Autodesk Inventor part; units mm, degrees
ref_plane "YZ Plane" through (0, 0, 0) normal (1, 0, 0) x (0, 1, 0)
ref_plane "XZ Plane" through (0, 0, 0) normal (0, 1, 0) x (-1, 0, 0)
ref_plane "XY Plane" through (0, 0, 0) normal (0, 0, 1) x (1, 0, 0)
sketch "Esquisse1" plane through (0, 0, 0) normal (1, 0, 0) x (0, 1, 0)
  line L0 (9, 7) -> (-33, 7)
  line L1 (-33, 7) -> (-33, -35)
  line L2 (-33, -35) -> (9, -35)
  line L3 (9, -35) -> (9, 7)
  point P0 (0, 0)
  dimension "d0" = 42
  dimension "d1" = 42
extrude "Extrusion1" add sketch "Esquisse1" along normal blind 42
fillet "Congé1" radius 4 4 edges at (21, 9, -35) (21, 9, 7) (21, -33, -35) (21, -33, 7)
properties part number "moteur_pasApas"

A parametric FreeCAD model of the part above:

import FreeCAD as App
import Part
import Sketcher


def edges_at(feature, points):
    """Names of the edges that pass closest to the given points."""
    edges = feature.Shape.Edges
    near = lambda p: min(range(len(edges)), key=lambda i: edges[i].distToShape(Part.Vertex(*p))[0])
    return sorted({f"Edge{near(p) + 1}" for p in points})


def add_polygon(sketch, points):
    """Adds a closed chain of lines whose ends are joined by coincident constraints."""
    first, n = sketch.GeometryCount, len(points)
    for a, b in zip(points, points[1:] + points[:1]):
        sketch.addGeometry(Part.LineSegment(App.Vector(*a, 0), App.Vector(*b, 0)), False)
    for i in range(n):
        sketch.addConstraint(Sketcher.Constraint("Coincident", first + i, 2, first + (i + 1) % n, 1))

doc = App.newDocument("Part")
body = doc.addObject("PartDesign::Body", "Body")

sketch1 = doc.addObject("Sketcher::SketchObject", "Sketch")
body.addObject(sketch1)
sketch1.AttachmentSupport = (doc.YZ_Plane, [""])
sketch1.MapMode = "FlatFace"
add_polygon(sketch1, [(9, -35), (9, 7), (-33, 7), (-33, -35)])
sketch1.addConstraint(Sketcher.Constraint("Vertical", 0))
sketch1.addConstraint(Sketcher.Constraint("Horizontal", 1))
sketch1.addConstraint(Sketcher.Constraint("Vertical", 2))
sketch1.addConstraint(Sketcher.Constraint("Horizontal", 3))
sketch1.addConstraint(Sketcher.Constraint("Equal", 3, 0))
sketch1.addConstraint(Sketcher.Constraint("DistanceX", 1, 2, 1, 1, 42.0))
sketch1.addConstraint(Sketcher.Constraint("DistanceX", -1, 1, 0, 2, 9.0))
sketch1.addConstraint(Sketcher.Constraint("DistanceY", -1, 1, 0, 2, 7.0))
pad1 = doc.addObject("PartDesign::Pad", "Pad")
body.addObject(pad1)
pad1.Profile = sketch1
pad1.Length = 42
doc.recompute()

fillet = doc.addObject("PartDesign::Fillet", "Fillet")
body.addObject(fillet)
fillet.Base = (pad1, edges_at(pad1, [
    (21, 9, -35),
    (21, 9, 7),
    (21, -33, -35),
    (21, -33, 7),
]))
fillet.Radius = 4

doc.recompute()
